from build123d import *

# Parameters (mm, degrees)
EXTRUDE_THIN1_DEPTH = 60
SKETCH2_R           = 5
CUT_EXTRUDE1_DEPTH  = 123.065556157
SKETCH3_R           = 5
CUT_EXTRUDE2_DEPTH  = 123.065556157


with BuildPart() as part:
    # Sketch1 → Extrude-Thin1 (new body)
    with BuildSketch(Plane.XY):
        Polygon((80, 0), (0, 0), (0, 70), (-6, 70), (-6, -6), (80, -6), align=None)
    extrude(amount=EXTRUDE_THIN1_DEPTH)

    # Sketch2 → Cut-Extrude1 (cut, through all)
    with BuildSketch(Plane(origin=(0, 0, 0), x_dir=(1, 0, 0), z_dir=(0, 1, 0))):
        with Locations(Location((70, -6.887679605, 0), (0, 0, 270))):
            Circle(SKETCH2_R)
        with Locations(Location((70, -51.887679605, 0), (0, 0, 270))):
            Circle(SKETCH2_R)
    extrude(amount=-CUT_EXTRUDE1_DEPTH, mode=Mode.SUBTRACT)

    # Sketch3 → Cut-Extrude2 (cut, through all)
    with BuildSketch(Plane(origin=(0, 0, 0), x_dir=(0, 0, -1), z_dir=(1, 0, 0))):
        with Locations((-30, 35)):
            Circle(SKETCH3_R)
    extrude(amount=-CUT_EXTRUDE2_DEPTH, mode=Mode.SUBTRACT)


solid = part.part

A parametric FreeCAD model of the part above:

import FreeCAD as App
import Part
import Sketcher

doc = App.newDocument("Part")
body = doc.addObject("PartDesign::Body", "Body")

sketch1 = body.newObject("Sketcher::SketchObject", "Sketch")
sketch1.AttachmentSupport = (doc.getObject("XY_Plane"), [""])
sketch1.MapMode = "FlatFace"
sketch1.addGeometry(Part.LineSegment(App.Vector(80, 0, 0), App.Vector(0, 0, 0)), False)
sketch1.addGeometry(Part.LineSegment(App.Vector(0, 0, 0), App.Vector(0, 70, 0)), False)
sketch1.addGeometry(Part.LineSegment(App.Vector(0, 70, 0), App.Vector(-6, 70, 0)), False)
sketch1.addGeometry(Part.LineSegment(App.Vector(-6, 70, 0), App.Vector(-6, -6, 0)), False)
sketch1.addGeometry(Part.LineSegment(App.Vector(-6, -6, 0), App.Vector(80, -6, 0)), False)
sketch1.addGeometry(Part.LineSegment(App.Vector(80, -6, 0), App.Vector(80, 0, 0)), False)
sketch1.addConstraint(Sketcher.Constraint("Coincident", 0, 2, 1, 1))
sketch1.addConstraint(Sketcher.Constraint("Coincident", 1, 2, 2, 1))
sketch1.addConstraint(Sketcher.Constraint("Coincident", 2, 2, 3, 1))
sketch1.addConstraint(Sketcher.Constraint("Coincident", 3, 2, 4, 1))
sketch1.addConstraint(Sketcher.Constraint("Coincident", 4, 2, 5, 1))
sketch1.addConstraint(Sketcher.Constraint("Coincident", 5, 2, 0, 1))
sketch1.addConstraint(Sketcher.Constraint("Horizontal", 0))
sketch1.addConstraint(Sketcher.Constraint("Vertical", 1))
sketch1.addConstraint(Sketcher.Constraint("Horizontal", 2))
sketch1.addConstraint(Sketcher.Constraint("Vertical", 3))
sketch1.addConstraint(Sketcher.Constraint("Horizontal", 4))
sketch1.addConstraint(Sketcher.Constraint("Vertical", 5))
sketch1.addConstraint(Sketcher.Constraint("Coincident", 0, 2, -1, 1))
sketch1.addConstraint(Sketcher.Constraint("Equal", 2, 5))
sketch1.addConstraint(Sketcher.Constraint("DistanceX", 0, 2, 0, 1, 80.0))
sketch1.addConstraint(Sketcher.Constraint("DistanceX", 2, 2, 2, 1, 6.0))
sketch1.addConstraint(Sketcher.Constraint("DistanceY", 1, 1, 1, 2, 70.0))
pad1 = body.newObject("PartDesign::Pad", "Pad")
pad1.Profile = sketch1
pad1.Length = 60

sketch2 = body.newObject("Sketcher::SketchObject", "Sketch001")
sketch2.AttachmentSupport = (doc.getObject("XZ_Plane"), [""])
sketch2.MapMode = "FlatFace"
sketch2.addGeometry(Part.Circle(App.Vector(70, 6.88768, 0), App.Vector(0, 0, 1), 5), False)
sketch2.addGeometry(Part.Circle(App.Vector(70, 51.88768, 0), App.Vector(0, 0, 1), 5), False)
sketch2.addConstraint(Sketcher.Constraint("Equal", 0, 1))
sketch2.addConstraint(Sketcher.Constraint("Vertical", 0, 3, 1, 3))
sketch2.addConstraint(Sketcher.Constraint("Diameter", 0, 10.0))
sketch2.addConstraint(Sketcher.Constraint("DistanceX", -1, 1, 0, 3, 70.0))
sketch2.addConstraint(Sketcher.Constraint("DistanceY", 0, 3, 1, 3, 45.0))
sketch2.addConstraint(Sketcher.Constraint("DistanceY", -1, 1, 0, 3, 6.88768))
pocket1 = body.newObject("PartDesign::Pocket", "Pocket")
pocket1.Profile = sketch2
pocket1.Type = "ThroughAll"
pocket1.Reversed = True

sketch3 = body.newObject("Sketcher::SketchObject", "Sketch002")
sketch3.AttachmentSupport = (doc.getObject("YZ_Plane"), [""])
sketch3.MapMode = "FlatFace"
sketch3.addGeometry(Part.Circle(App.Vector(35, 30, 0), App.Vector(0, 0, 1), 5), False)
sketch3.addConstraint(Sketcher.Constraint("Diameter", 0, 10.0))
sketch3.addConstraint(Sketcher.Constraint("DistanceX", -1, 1, 0, 3, 35.0))
sketch3.addConstraint(Sketcher.Constraint("DistanceY", -1, 1, 0, 3, 30.0))
pocket2 = body.newObject("PartDesign::Pocket", "Pocket001")
pocket2.Profile = sketch3
pocket2.Type = "ThroughAll"

doc.recompute()
